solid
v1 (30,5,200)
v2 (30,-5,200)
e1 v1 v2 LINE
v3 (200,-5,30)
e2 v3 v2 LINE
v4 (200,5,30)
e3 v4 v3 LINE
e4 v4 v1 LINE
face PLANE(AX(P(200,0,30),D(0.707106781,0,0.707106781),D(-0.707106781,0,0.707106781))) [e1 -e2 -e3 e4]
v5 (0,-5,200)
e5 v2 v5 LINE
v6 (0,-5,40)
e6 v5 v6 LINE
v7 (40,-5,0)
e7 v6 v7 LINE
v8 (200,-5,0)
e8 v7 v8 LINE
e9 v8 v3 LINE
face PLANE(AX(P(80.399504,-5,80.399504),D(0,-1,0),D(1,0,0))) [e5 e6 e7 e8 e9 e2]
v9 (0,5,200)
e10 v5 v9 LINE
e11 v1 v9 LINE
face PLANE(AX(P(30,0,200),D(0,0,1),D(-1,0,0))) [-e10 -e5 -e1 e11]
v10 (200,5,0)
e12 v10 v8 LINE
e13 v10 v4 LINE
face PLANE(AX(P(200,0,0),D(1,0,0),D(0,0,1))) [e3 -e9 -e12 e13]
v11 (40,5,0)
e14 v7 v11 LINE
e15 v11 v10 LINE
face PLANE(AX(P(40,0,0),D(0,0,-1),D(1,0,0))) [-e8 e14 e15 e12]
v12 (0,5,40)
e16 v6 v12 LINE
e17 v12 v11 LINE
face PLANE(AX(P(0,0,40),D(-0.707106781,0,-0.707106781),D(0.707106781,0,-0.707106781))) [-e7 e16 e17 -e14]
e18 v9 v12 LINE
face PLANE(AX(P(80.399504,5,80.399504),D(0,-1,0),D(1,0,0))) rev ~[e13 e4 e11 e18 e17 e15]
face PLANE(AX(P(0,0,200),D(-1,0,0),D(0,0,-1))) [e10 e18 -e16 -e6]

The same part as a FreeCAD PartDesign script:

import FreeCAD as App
import Part
import Sketcher
from FreeCAD import Vector
Q = App.Units.Quantity


def add_polygon(sketch, points):
    """Adds a closed chain of lines whose ends are joined by coincident constraints."""
    first, n = sketch.GeometryCount, len(points)
    for a, b in zip(points, points[1:] + points[:1]):
        sketch.addGeometry(Part.LineSegment(App.Vector(*a, 0), App.Vector(*b, 0)), False)
    for i in range(n):
        sketch.addConstraint(Sketcher.Constraint("Coincident", first + i, 2, first + (i + 1) % n, 1))

doc = App.newDocument("Part")
body = doc.addObject("PartDesign::Body", "Body")

# Sketch on XZ plane
sketch1 = body.newObject("Sketcher::SketchObject", "Sketch")
sketch1.AttachmentSupport = (doc.getObject("XZ_Plane"), [""])
sketch1.MapMode = "FlatFace"
add_polygon(sketch1, [(40, 0), (200, 0), (200, 30), (30, 200), (0, 200), (0, 40)])  # lines 0-5
sketch1.addConstraint([
    Sketcher.Constraint("Horizontal", 0),
    Sketcher.Constraint("Vertical", 1),
    Sketcher.Constraint("Horizontal", 3),
    Sketcher.Constraint("Vertical", 4),
    Sketcher.Constraint("PointOnObject", 0, 2, -1),
    Sketcher.Constraint("PointOnObject", 3, 2, -2),
    Sketcher.Constraint("Parallel", 2, 5),
    Sketcher.Constraint("Equal", 3, 1),
    Sketcher.Constraint("Equal", 0, 4),
    Sketcher.Constraint("DistanceX", 0, 1, 0, 2, Q("160 mm")),
    Sketcher.Constraint("DistanceX", 3, 2, 3, 1, Q("30 mm")),
    Sketcher.Constraint("DistanceX", -1, 1, 0, 2, Q("200 mm")),
])
pad1 = body.newObject("PartDesign::Pad", "Pad")
pad1.Profile = sketch1
pad1.Length = 10
pad1.Midplane = True

doc.recompute()
